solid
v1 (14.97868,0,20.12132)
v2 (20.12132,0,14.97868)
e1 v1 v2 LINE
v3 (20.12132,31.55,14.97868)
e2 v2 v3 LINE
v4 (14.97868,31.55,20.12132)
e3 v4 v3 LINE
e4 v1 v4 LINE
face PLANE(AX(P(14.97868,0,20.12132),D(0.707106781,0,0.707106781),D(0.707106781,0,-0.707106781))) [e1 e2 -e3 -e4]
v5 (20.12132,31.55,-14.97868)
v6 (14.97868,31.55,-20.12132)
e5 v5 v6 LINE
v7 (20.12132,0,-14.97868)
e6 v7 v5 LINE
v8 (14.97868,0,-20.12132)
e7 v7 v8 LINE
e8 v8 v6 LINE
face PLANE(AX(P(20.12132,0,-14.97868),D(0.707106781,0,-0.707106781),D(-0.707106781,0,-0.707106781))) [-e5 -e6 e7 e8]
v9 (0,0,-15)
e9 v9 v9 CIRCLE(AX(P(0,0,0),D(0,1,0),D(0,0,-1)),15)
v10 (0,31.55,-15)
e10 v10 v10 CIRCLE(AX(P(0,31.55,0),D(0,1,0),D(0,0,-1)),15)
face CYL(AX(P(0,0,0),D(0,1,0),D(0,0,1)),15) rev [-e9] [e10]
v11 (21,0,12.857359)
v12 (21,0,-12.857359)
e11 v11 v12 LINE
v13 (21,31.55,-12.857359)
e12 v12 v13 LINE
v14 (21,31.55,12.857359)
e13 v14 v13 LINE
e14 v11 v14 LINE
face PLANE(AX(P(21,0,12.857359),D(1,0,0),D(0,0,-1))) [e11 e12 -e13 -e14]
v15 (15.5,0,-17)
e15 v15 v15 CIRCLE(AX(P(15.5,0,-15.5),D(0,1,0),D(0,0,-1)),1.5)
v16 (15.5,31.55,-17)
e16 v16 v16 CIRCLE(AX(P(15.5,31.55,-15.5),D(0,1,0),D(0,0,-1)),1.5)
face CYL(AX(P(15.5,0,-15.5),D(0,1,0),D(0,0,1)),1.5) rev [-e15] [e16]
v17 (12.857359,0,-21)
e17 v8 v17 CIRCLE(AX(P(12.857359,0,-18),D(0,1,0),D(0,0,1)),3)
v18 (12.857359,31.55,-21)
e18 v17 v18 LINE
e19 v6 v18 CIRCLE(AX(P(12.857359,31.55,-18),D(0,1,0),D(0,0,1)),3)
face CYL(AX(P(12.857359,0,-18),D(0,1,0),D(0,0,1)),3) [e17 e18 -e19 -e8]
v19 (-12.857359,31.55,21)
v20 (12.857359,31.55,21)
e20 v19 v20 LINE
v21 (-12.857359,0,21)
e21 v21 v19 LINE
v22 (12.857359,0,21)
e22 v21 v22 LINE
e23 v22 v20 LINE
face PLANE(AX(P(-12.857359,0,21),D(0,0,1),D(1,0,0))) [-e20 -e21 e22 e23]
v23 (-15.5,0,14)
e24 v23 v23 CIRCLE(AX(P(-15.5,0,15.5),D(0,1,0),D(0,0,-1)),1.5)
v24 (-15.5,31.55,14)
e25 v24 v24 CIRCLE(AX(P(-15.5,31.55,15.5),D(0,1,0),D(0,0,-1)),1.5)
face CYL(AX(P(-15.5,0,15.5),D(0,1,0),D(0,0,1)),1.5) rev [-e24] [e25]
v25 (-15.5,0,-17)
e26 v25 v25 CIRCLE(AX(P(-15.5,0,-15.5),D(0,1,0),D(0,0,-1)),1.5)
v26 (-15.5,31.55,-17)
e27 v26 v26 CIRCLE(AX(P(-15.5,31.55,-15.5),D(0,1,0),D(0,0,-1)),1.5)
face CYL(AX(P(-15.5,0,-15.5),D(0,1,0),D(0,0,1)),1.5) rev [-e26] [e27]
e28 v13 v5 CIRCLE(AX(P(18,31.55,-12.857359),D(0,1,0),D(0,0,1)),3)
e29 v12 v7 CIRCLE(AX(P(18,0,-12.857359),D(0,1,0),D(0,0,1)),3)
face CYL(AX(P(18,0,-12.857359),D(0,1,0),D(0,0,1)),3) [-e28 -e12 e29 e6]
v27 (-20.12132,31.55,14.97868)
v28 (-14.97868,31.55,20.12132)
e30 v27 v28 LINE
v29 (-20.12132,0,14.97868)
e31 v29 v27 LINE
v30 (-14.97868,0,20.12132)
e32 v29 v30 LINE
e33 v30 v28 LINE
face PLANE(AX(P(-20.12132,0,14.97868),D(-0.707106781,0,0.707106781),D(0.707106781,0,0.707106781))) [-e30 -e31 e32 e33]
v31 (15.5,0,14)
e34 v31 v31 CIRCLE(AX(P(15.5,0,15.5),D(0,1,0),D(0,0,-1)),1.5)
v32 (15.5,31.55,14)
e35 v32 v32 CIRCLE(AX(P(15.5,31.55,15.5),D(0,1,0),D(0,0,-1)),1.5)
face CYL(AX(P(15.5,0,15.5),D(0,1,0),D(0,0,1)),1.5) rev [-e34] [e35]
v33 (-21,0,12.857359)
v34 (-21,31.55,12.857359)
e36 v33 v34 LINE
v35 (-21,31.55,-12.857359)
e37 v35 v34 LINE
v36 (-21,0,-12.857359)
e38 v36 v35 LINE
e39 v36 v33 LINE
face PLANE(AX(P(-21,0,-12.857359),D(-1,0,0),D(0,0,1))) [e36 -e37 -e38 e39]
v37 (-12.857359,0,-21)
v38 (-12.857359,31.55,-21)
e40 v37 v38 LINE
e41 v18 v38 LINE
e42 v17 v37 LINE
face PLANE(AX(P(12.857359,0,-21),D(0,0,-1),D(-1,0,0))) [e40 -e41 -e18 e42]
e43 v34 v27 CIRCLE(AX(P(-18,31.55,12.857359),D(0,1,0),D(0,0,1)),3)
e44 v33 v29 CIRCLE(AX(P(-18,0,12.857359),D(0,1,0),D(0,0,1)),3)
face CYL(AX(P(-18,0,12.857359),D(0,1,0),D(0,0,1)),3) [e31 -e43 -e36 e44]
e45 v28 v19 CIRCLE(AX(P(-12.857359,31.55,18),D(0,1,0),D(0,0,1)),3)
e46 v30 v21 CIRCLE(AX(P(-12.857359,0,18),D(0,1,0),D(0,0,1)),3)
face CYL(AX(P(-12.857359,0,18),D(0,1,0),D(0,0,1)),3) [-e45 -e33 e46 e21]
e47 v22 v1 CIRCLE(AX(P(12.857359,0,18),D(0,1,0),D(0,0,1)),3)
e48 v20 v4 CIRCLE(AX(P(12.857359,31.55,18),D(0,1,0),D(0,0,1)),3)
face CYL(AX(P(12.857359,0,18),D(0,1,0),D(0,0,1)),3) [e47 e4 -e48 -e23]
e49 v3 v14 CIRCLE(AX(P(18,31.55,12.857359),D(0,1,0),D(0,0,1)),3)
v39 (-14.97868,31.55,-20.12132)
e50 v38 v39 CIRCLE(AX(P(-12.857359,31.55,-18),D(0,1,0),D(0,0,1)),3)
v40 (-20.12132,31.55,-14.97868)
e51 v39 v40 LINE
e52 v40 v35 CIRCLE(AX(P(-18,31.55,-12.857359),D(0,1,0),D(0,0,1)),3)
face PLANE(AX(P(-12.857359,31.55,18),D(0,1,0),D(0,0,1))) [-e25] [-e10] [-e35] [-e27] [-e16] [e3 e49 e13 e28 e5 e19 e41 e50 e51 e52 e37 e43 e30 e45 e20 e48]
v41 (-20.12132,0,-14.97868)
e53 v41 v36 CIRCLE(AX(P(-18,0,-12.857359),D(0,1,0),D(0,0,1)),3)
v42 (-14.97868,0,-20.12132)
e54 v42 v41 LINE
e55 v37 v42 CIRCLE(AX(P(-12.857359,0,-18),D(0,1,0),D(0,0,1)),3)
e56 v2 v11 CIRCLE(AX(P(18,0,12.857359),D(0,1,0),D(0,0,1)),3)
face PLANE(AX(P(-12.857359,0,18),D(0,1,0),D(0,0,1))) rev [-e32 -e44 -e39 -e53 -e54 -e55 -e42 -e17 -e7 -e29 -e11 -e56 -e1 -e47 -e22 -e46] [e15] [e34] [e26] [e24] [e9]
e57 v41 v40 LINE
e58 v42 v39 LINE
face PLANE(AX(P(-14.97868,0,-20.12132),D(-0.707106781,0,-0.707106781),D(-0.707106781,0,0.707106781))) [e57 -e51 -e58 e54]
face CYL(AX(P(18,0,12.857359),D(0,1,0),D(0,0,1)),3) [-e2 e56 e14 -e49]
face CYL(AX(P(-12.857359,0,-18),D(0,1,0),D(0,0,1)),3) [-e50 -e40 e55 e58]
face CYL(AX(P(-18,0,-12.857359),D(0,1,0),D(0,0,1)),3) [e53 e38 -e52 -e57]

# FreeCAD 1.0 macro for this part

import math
import FreeCAD as App
import Part
import Sketcher

doc = App.newDocument("Part")
body = doc.addObject("PartDesign::Body", "Body")

# Sketch on XZ plane
sketch1 = body.newObject("Sketcher::SketchObject", "Sketch")
sketch1.AttachmentSupport = (doc.getObject("XZ_Plane"), [""])
sketch1.MapMode = "FlatFace"
sketch1.AttachmentOffset = App.Placement(App.Vector(0, 0, -31.55), App.Rotation())
sketch1.addGeometry([
    Part.LineSegment(App.Vector(-12.857359, 21, 0), App.Vector(12.857359, 21, 0)),  # 0
    Part.ArcOfCircle(Part.Circle(App.Vector(12.857359, 18, 0), App.Vector(0, 0, 1), 3), math.radians(45), math.radians(90)),  # 1
    Part.LineSegment(App.Vector(14.97868, 20.12132, 0), App.Vector(20.12132, 14.97868, 0)),  # 2
    Part.ArcOfCircle(Part.Circle(App.Vector(18, 12.857359, 0), App.Vector(0, 0, 1), 3), math.radians(0), math.radians(45)),  # 3
    Part.LineSegment(App.Vector(21, 12.857359, 0), App.Vector(21, -12.857359, 0)),  # 4
    Part.ArcOfCircle(Part.Circle(App.Vector(18, -12.857359, 0), App.Vector(0, 0, 1), 3), math.radians(-45), math.radians(0)),  # 5
    Part.LineSegment(App.Vector(20.12132, -14.97868, 0), App.Vector(14.97868, -20.12132, 0)),  # 6
    Part.ArcOfCircle(Part.Circle(App.Vector(12.857359, -18, 0), App.Vector(0, 0, 1), 3), math.radians(-90), math.radians(-45)),  # 7
    Part.LineSegment(App.Vector(12.857359, -21, 0), App.Vector(-12.857359, -21, 0)),  # 8
    Part.ArcOfCircle(Part.Circle(App.Vector(-12.857359, -18, 0), App.Vector(0, 0, 1), 3), math.radians(-135), math.radians(-90)),  # 9
    Part.LineSegment(App.Vector(-14.97868, -20.12132, 0), App.Vector(-20.12132, -14.97868, 0)),  # 10
    Part.ArcOfCircle(Part.Circle(App.Vector(-18, -12.857359, 0), App.Vector(0, 0, 1), 3), math.radians(180), math.radians(225)),  # 11
    Part.LineSegment(App.Vector(-21, -12.857359, 0), App.Vector(-21, 12.857359, 0)),  # 12
    Part.ArcOfCircle(Part.Circle(App.Vector(-18, 12.857359, 0), App.Vector(0, 0, 1), 3), math.radians(135), math.radians(180)),  # 13
    Part.LineSegment(App.Vector(-20.12132, 14.97868, 0), App.Vector(-14.97868, 20.12132, 0)),  # 14
    Part.ArcOfCircle(Part.Circle(App.Vector(-12.857359, 18, 0), App.Vector(0, 0, 1), 3), math.radians(90), math.radians(135)),  # 15
    Part.Circle(App.Vector(-15.5, 15.5, 0), App.Vector(0, 0, 1), 1.5),  # 16
    Part.Circle(App.Vector(15.5, 15.5, 0), App.Vector(0, 0, 1), 1.5),  # 17
    Part.Circle(App.Vector(-15.5, -15.5, 0), App.Vector(0, 0, 1), 1.5),  # 18
    Part.Circle(App.Vector(0, 0, 0), App.Vector(0, 0, 1), 15),  # 19
    Part.Circle(App.Vector(15.5, -15.5, 0), App.Vector(0, 0, 1), 1.5),  # 20
], False)
sketch1.addConstraint([
    Sketcher.Constraint("Tangent", 0, 2, 1, 2),
    Sketcher.Constraint("Tangent", 1, 1, 2, 1),
    Sketcher.Constraint("Tangent", 2, 2, 3, 2),
    Sketcher.Constraint("Tangent", 3, 1, 4, 1),
    Sketcher.Constraint("Tangent", 4, 2, 5, 2),
    Sketcher.Constraint("Tangent", 5, 1, 6, 1),
    Sketcher.Constraint("Tangent", 6, 2, 7, 2),
    Sketcher.Constraint("Tangent", 7, 1, 8, 1),
    Sketcher.Constraint("Tangent", 8, 2, 9, 2),
    Sketcher.Constraint("Tangent", 9, 1, 10, 1),
    Sketcher.Constraint("Tangent", 10, 2, 11, 2),
    Sketcher.Constraint("Tangent", 11, 1, 12, 1),
    Sketcher.Constraint("Tangent", 12, 2, 13, 2),
    Sketcher.Constraint("Tangent", 13, 1, 14, 1),
    Sketcher.Constraint("Tangent", 14, 2, 15, 2),
    Sketcher.Constraint("Tangent", 15, 1, 0, 1),
    Sketcher.Constraint("Horizontal", 0),
    Sketcher.Constraint("Vertical", 4),
    Sketcher.Constraint("Horizontal", 8),
    Sketcher.Constraint("Vertical", 12),
    Sketcher.Constraint("Coincident", 19, 3, -1, 1),
    Sketcher.Constraint("Equal", 1, 3),
    Sketcher.Constraint("Equal", 3, 5),
    Sketcher.Constraint("Equal", 5, 7),
    Sketcher.Constraint("Equal", 7, 9),
    Sketcher.Constraint("Equal", 9, 11),
    Sketcher.Constraint("Equal", 11, 13),
    Sketcher.Constraint("Equal", 13, 15),
    Sketcher.Constraint("Equal", 16, 17),
    Sketcher.Constraint("Equal", 17, 18),
    Sketcher.Constraint("Equal", 18, 20),
    Sketcher.Constraint("Symmetric", 1, 3, 9, 3, -1, 1),
    Sketcher.Constraint("Symmetric", 3, 3, 11, 3, -1, 1),
    Sketcher.Constraint("Symmetric", 17, 3, 18, 3, -1, 1),
    Sketcher.Constraint("Symmetric", 16, 3, 20, 3, -1, 1),
    Sketcher.Constraint("Symmetric", 5, 1, 13, 1, -1, 1),
    Sketcher.Constraint("Symmetric", 16, 3, 17, 3, -2),
    Sketcher.Constraint("Symmetric", 6, 2, 9, 1, -2),
    Sketcher.Constraint("Perpendicular", 2, 6),
    Sketcher.Constraint("Equal", 8, 4),
    Sketcher.Constraint("Diameter", 16, 3.0),
    Sketcher.Constraint("Diameter", 19, 30.0),
    Sketcher.Constraint("Radius", 1, 3.0),
    Sketcher.Constraint("DistanceY", -1, 1, 1, 3, 18.0),
    Sketcher.Constraint("DistanceX", 16, 3, 17, 3, 31.0),
    Sketcher.Constraint("DistanceY", 18, 3, 16, 3, 31.0),
    Sketcher.Constraint("DistanceX", 0, 1, 0, 2, 25.714719),
])
pad1 = body.newObject("PartDesign::Pad", "Pad")
pad1.Profile = sketch1
pad1.Length = 31.55

doc.recompute()
